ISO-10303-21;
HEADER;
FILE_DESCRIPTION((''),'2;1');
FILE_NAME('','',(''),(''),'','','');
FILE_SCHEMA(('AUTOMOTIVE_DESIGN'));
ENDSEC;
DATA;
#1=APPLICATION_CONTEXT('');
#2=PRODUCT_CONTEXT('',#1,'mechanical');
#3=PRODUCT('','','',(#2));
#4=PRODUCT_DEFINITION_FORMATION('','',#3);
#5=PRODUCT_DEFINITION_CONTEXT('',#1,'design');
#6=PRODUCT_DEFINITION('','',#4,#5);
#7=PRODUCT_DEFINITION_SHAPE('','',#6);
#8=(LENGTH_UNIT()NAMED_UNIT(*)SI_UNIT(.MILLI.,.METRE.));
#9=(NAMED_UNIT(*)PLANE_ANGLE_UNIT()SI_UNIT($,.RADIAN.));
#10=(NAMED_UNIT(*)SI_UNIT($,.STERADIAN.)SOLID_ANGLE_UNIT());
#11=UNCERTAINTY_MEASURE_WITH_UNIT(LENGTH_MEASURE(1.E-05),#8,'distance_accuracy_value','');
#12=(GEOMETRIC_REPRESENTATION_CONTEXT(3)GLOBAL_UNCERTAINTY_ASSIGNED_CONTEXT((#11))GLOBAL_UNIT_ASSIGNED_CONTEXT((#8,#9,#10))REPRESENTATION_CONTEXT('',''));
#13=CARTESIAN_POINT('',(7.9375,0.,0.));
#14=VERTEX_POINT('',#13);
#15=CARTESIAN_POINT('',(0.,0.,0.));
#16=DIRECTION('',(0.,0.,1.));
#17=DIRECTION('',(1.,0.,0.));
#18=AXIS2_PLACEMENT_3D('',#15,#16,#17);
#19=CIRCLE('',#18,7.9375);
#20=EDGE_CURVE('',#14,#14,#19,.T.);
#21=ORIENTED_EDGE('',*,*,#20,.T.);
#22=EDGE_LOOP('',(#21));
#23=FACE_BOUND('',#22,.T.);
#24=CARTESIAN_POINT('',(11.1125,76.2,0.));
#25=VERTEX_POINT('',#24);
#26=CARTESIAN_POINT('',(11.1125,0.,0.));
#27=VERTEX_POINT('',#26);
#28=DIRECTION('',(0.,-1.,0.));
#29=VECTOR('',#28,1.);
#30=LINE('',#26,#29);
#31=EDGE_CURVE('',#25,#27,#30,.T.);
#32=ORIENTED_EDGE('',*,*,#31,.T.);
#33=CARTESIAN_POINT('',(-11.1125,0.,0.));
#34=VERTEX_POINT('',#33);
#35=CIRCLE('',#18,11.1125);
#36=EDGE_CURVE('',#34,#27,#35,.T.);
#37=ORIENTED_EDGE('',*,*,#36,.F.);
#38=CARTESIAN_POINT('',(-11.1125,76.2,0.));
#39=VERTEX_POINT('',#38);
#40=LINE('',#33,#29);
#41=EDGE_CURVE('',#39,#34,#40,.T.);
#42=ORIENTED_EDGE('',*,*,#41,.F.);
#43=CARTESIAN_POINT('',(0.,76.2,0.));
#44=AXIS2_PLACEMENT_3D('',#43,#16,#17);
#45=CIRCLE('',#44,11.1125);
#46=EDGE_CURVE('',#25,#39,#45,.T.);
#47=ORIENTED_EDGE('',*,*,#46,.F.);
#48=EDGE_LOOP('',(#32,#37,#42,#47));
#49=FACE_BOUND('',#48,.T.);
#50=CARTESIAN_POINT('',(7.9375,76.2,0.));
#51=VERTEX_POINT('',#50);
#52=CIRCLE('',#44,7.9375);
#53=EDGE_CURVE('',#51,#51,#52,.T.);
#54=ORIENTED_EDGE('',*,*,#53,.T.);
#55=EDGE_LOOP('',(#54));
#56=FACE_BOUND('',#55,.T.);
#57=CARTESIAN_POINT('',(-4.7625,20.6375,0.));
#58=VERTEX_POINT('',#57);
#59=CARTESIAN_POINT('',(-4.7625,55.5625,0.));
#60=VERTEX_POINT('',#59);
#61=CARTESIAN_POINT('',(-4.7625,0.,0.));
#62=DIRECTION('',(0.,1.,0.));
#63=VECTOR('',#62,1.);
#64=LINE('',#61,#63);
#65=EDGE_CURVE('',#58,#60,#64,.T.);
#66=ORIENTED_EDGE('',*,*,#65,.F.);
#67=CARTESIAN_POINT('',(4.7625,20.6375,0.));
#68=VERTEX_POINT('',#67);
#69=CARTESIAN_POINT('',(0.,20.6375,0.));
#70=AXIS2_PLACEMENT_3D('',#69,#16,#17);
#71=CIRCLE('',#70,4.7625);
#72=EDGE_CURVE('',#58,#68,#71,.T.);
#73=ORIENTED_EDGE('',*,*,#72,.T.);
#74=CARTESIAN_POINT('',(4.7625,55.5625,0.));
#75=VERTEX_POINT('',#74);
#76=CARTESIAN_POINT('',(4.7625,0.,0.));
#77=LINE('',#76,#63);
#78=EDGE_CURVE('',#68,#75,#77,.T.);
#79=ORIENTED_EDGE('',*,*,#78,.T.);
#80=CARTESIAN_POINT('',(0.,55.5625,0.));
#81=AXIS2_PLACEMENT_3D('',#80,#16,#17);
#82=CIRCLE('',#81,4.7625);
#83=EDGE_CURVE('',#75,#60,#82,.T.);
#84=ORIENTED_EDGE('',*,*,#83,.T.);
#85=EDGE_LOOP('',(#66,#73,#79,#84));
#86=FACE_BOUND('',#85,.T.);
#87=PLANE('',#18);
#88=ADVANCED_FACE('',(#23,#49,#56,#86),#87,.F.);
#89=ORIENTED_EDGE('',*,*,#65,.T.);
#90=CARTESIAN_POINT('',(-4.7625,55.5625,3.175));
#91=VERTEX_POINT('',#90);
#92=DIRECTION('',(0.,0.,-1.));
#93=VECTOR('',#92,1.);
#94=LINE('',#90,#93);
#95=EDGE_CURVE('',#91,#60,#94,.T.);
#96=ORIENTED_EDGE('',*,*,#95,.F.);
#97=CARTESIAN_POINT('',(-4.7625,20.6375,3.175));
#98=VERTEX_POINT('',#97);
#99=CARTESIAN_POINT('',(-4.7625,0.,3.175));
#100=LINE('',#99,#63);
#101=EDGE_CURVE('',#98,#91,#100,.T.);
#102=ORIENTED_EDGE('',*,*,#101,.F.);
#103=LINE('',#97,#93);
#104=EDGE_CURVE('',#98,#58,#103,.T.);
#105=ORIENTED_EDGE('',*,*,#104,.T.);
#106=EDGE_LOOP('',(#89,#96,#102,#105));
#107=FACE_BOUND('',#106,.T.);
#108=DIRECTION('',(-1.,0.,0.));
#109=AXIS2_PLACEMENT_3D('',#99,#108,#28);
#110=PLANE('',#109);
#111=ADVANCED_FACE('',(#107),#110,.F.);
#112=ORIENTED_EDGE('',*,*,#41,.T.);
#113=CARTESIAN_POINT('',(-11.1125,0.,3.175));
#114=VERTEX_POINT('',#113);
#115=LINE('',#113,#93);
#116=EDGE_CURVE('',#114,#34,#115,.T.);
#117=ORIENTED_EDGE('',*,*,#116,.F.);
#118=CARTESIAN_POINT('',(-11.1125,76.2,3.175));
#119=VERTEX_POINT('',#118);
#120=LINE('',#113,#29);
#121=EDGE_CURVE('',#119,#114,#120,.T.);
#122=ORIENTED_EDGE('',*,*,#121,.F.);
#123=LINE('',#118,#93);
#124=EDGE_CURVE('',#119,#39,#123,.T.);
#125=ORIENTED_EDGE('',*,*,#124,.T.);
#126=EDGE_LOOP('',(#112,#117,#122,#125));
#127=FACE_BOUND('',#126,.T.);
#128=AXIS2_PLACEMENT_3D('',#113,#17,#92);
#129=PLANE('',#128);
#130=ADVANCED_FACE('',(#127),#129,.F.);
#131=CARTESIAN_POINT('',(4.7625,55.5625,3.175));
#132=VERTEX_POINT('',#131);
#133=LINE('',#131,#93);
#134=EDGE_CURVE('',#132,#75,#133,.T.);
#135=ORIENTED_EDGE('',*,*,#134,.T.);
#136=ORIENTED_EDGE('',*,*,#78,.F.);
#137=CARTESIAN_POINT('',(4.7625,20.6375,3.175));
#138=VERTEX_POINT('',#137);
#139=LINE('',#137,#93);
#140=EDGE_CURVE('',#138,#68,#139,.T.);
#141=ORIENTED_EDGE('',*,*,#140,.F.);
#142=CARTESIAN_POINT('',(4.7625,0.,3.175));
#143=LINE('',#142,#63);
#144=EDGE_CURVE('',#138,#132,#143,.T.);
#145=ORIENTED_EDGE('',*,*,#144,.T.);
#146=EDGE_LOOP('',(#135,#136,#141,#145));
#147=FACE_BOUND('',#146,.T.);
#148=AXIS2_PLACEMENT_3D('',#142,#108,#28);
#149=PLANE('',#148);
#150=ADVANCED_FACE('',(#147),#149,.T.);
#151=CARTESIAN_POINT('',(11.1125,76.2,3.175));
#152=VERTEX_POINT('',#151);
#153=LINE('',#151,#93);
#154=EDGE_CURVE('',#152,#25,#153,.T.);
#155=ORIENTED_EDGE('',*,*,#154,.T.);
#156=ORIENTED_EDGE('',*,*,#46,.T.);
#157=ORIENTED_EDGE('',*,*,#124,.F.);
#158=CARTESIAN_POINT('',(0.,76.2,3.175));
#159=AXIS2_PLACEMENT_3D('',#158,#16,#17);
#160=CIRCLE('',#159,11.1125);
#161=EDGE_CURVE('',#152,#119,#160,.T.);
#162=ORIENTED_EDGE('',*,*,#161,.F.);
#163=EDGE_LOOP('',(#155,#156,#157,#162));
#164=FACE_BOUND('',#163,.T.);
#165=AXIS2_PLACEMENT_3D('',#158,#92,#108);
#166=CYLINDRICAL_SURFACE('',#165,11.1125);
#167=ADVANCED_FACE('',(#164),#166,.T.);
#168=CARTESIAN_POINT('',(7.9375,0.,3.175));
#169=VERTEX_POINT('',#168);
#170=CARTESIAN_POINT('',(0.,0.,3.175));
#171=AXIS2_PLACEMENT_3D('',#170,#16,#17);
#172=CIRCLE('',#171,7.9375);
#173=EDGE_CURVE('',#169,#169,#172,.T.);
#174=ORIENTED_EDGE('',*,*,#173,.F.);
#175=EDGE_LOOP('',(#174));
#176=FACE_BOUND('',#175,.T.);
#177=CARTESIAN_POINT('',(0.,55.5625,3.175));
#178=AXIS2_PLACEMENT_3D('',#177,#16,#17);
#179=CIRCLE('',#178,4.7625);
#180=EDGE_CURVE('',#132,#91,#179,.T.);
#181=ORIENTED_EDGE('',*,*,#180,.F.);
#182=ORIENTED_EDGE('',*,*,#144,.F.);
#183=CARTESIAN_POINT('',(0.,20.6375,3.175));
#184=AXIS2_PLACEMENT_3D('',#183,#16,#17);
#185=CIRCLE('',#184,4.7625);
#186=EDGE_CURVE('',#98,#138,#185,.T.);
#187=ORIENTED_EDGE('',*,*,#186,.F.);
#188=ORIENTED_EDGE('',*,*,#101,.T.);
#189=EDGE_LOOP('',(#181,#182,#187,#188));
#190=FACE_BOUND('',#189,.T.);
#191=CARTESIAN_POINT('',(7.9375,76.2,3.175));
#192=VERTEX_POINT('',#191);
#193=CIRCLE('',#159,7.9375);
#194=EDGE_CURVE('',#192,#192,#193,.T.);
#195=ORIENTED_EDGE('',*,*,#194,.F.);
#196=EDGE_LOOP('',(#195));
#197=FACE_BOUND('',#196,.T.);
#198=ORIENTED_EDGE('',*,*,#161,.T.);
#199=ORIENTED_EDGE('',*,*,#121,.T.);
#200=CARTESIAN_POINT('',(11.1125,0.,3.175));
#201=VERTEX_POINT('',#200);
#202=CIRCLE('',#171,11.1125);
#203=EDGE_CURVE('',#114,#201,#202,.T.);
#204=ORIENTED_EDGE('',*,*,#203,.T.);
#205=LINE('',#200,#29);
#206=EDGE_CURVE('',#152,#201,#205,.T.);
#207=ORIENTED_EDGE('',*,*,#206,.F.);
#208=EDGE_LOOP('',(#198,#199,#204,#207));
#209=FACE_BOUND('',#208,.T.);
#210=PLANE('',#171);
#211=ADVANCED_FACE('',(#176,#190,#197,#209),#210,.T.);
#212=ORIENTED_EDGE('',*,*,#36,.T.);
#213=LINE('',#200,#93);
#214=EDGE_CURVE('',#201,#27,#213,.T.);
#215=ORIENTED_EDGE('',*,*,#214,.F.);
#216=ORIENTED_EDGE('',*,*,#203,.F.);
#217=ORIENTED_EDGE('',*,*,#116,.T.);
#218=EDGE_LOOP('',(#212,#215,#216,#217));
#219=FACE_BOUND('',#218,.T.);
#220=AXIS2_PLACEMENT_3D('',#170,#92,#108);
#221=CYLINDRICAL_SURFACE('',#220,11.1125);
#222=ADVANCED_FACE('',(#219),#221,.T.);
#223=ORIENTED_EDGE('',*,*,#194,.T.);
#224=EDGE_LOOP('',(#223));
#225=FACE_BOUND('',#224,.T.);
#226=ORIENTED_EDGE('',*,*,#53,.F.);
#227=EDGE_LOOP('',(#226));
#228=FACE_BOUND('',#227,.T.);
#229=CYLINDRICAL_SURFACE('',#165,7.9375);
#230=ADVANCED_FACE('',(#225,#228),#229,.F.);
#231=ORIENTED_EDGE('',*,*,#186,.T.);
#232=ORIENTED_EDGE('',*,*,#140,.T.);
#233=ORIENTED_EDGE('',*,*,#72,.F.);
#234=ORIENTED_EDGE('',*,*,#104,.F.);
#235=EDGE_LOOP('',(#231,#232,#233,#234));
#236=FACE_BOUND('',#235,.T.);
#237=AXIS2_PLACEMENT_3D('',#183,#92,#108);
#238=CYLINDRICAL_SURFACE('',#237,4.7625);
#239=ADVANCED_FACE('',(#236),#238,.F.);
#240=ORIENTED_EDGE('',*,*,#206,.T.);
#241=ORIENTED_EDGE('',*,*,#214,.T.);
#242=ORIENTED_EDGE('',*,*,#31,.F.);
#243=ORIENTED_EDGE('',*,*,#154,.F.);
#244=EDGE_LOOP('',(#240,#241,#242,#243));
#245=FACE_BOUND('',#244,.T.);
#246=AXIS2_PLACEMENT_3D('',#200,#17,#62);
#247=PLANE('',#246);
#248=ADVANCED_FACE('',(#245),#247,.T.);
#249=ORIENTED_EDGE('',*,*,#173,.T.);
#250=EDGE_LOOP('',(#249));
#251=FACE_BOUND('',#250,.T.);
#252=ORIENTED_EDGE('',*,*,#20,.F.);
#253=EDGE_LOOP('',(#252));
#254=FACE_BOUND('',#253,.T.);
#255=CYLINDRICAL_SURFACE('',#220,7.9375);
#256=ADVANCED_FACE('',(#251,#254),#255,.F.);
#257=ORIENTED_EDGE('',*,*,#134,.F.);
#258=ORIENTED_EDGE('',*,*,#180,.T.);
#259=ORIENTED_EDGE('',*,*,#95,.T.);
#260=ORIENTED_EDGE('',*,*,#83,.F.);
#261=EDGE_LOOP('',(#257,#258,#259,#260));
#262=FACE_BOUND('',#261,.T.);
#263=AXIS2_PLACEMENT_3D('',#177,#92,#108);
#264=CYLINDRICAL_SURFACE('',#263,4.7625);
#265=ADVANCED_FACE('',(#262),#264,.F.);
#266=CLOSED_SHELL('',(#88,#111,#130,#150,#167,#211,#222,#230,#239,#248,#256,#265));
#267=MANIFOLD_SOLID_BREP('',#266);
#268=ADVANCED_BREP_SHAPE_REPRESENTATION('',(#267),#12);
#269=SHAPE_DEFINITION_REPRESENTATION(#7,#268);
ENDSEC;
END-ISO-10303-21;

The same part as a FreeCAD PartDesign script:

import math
import FreeCAD as App
import Part
import Sketcher
Q = App.Units.Quantity

doc = App.newDocument("Part")
body = doc.addObject("PartDesign::Body", "Body")

# Sketch on XY plane
sketch1 = body.newObject("Sketcher::SketchObject", "Sketch")
sketch1.AttachmentSupport = (doc.getObject("XY_Plane"), [""])
sketch1.MapMode = "FlatFace"
sketch1.addGeometry([
    Part.ArcOfCircle(Part.Circle(App.Vector(0, 76.2, 0), App.Vector(0, 0, 1), 11.1125), math.radians(0), math.radians(180)),  # 0
    Part.LineSegment(App.Vector(-11.1125, 76.2, 0), App.Vector(-11.1125, 0, 0)),  # 1
    Part.ArcOfCircle(Part.Circle(App.Vector(0, 0, 0), App.Vector(0, 0, 1), 11.1125), math.radians(180), math.radians(360)),  # 2
    Part.LineSegment(App.Vector(11.1125, 0, 0), App.Vector(11.1125, 76.2, 0)),  # 3
    Part.Circle(App.Vector(0, 0, 0), App.Vector(0, 0, 1), 7.9375),  # 4
    Part.ArcOfCircle(Part.Circle(App.Vector(0, 20.6375, 0), App.Vector(0, 0, 1), 4.7625), math.radians(180), math.radians(360)),  # 5
    Part.LineSegment(App.Vector(-4.7625, 20.6375, 0), App.Vector(-4.7625, 55.5625, 0)),  # 6
    Part.ArcOfCircle(Part.Circle(App.Vector(0, 55.5625, 0), App.Vector(0, 0, 1), 4.7625), math.radians(0), math.radians(180)),  # 7
    Part.LineSegment(App.Vector(4.7625, 55.5625, 0), App.Vector(4.7625, 20.6375, 0)),  # 8
    Part.Circle(App.Vector(0, 76.2, 0), App.Vector(0, 0, 1), 7.9375),  # 9
], False)
sketch1.addConstraint([
    Sketcher.Constraint("Tangent", 0, 2, 1, 1),
    Sketcher.Constraint("Tangent", 1, 2, 2, 1),
    Sketcher.Constraint("Tangent", 2, 2, 3, 1),
    Sketcher.Constraint("Tangent", 3, 2, 0, 1),
    Sketcher.Constraint("Tangent", 5, 1, 6, 1),
    Sketcher.Constraint("Tangent", 6, 2, 7, 2),
    Sketcher.Constraint("Tangent", 7, 1, 8, 1),
    Sketcher.Constraint("Tangent", 8, 2, 5, 2),
    Sketcher.Constraint("Vertical", 1),
    Sketcher.Constraint("Vertical", 3),
    Sketcher.Constraint("Vertical", 6),
    Sketcher.Constraint("Vertical", 8),
    Sketcher.Constraint("Coincident", 2, 3, -1, 1),
    Sketcher.Constraint("Coincident", 4, 3, -1, 1),
    Sketcher.Constraint("Coincident", 9, 3, 0, 3),
    Sketcher.Constraint("Equal", 4, 9),
    Sketcher.Constraint("PointOnObject", 5, 3, -2),
    Sketcher.Constraint("DistanceY", 1, 2, 1, 1, Q("3 in")),
    Sketcher.Constraint("Diameter", 4, Q("0.625 in")),
    Sketcher.Constraint("Radius", 0, Q("0.4375 in")),
    Sketcher.Constraint("Radius", 5, Q("0.1875 in")),
    Sketcher.Constraint("DistanceY", 6, 1, 6, 2, Q("1.375 in")),
    Sketcher.Constraint("DistanceY", -1, 1, 5, 3, Q("0.8125 in")),
])
pad1 = body.newObject("PartDesign::Pad", "Pad")
pad1.Profile = sketch1
pad1.Length = Q("0.125 in")

doc.recompute()
